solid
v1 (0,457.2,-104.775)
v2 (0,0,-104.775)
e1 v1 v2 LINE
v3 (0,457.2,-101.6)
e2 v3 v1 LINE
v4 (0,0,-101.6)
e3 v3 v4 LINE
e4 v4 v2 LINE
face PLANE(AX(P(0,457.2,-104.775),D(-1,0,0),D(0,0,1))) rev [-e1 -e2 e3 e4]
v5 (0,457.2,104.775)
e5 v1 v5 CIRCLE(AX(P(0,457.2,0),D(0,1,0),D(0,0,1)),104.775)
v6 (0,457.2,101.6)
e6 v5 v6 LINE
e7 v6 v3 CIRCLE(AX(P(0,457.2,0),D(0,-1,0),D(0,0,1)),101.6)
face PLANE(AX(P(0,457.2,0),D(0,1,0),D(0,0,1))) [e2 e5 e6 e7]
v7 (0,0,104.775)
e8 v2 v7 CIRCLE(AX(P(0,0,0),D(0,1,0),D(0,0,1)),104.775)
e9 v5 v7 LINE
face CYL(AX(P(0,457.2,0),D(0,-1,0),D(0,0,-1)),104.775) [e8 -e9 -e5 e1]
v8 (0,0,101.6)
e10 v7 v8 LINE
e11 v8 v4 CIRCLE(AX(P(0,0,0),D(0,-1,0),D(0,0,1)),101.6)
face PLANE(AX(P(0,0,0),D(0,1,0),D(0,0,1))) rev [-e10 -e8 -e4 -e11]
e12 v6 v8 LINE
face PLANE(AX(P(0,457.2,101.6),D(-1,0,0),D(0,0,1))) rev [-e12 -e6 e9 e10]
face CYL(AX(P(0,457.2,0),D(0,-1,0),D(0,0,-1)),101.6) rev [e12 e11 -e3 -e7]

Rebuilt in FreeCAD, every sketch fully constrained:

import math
import FreeCAD as App
import Part
import Sketcher

V = App.Vector
Q = App.Units.Quantity

doc = App.newDocument("Part")
body = doc.addObject("PartDesign::Body", "Body")

# Sketch on XZ plane
sketch1 = body.newObject("Sketcher::SketchObject", "Sketch")
sketch1.AttachmentSupport = (doc.getObject("XZ_Plane"), [""])
sketch1.MapMode = "FlatFace"
sketch1.addGeometry(Part.LineSegment(V(0, -101.6, 0), V(0, -104.8, 0)), False)
sketch1.addGeometry(Part.ArcOfCircle(Part.Circle(V(0, 0, 0), V(0, 0, 1), 104.8), math.radians(90), math.radians(270)), False)
sketch1.addGeometry(Part.LineSegment(V(0, 104.8, 0), V(0, 101.6, 0)), False)
sketch1.addGeometry(Part.ArcOfCircle(Part.Circle(V(0, 0, 0), V(0, 0, 1), 101.6), math.radians(90), math.radians(270)), False)
sketch1.addConstraint(Sketcher.Constraint("Coincident", 0, 2, 1, 2))
sketch1.addConstraint(Sketcher.Constraint("Coincident", 1, 1, 2, 1))
sketch1.addConstraint(Sketcher.Constraint("Coincident", 2, 2, 3, 1))
sketch1.addConstraint(Sketcher.Constraint("Coincident", 3, 2, 0, 1))
sketch1.addConstraint(Sketcher.Constraint("Vertical", 0))
sketch1.addConstraint(Sketcher.Constraint("Vertical", 2))
sketch1.addConstraint(Sketcher.Constraint("Coincident", 1, 3, -1, 1))
sketch1.addConstraint(Sketcher.Constraint("Coincident", 3, 3, -1, 1))
sketch1.addConstraint(Sketcher.Constraint("PointOnObject", 0, 2, -2))
sketch1.addConstraint(Sketcher.Constraint("PointOnObject", 1, 1, -2))
sketch1.addConstraint(Sketcher.Constraint("Radius", 3, Q("4 in")))
sketch1.addConstraint(Sketcher.Constraint("Radius", 1, Q("4.125 in")))
pad1 = body.newObject("PartDesign::Pad", "Pad")
pad1.Profile = sketch1
pad1.Length = Q("18 in")
pad1.Reversed = True

doc.recompute()
